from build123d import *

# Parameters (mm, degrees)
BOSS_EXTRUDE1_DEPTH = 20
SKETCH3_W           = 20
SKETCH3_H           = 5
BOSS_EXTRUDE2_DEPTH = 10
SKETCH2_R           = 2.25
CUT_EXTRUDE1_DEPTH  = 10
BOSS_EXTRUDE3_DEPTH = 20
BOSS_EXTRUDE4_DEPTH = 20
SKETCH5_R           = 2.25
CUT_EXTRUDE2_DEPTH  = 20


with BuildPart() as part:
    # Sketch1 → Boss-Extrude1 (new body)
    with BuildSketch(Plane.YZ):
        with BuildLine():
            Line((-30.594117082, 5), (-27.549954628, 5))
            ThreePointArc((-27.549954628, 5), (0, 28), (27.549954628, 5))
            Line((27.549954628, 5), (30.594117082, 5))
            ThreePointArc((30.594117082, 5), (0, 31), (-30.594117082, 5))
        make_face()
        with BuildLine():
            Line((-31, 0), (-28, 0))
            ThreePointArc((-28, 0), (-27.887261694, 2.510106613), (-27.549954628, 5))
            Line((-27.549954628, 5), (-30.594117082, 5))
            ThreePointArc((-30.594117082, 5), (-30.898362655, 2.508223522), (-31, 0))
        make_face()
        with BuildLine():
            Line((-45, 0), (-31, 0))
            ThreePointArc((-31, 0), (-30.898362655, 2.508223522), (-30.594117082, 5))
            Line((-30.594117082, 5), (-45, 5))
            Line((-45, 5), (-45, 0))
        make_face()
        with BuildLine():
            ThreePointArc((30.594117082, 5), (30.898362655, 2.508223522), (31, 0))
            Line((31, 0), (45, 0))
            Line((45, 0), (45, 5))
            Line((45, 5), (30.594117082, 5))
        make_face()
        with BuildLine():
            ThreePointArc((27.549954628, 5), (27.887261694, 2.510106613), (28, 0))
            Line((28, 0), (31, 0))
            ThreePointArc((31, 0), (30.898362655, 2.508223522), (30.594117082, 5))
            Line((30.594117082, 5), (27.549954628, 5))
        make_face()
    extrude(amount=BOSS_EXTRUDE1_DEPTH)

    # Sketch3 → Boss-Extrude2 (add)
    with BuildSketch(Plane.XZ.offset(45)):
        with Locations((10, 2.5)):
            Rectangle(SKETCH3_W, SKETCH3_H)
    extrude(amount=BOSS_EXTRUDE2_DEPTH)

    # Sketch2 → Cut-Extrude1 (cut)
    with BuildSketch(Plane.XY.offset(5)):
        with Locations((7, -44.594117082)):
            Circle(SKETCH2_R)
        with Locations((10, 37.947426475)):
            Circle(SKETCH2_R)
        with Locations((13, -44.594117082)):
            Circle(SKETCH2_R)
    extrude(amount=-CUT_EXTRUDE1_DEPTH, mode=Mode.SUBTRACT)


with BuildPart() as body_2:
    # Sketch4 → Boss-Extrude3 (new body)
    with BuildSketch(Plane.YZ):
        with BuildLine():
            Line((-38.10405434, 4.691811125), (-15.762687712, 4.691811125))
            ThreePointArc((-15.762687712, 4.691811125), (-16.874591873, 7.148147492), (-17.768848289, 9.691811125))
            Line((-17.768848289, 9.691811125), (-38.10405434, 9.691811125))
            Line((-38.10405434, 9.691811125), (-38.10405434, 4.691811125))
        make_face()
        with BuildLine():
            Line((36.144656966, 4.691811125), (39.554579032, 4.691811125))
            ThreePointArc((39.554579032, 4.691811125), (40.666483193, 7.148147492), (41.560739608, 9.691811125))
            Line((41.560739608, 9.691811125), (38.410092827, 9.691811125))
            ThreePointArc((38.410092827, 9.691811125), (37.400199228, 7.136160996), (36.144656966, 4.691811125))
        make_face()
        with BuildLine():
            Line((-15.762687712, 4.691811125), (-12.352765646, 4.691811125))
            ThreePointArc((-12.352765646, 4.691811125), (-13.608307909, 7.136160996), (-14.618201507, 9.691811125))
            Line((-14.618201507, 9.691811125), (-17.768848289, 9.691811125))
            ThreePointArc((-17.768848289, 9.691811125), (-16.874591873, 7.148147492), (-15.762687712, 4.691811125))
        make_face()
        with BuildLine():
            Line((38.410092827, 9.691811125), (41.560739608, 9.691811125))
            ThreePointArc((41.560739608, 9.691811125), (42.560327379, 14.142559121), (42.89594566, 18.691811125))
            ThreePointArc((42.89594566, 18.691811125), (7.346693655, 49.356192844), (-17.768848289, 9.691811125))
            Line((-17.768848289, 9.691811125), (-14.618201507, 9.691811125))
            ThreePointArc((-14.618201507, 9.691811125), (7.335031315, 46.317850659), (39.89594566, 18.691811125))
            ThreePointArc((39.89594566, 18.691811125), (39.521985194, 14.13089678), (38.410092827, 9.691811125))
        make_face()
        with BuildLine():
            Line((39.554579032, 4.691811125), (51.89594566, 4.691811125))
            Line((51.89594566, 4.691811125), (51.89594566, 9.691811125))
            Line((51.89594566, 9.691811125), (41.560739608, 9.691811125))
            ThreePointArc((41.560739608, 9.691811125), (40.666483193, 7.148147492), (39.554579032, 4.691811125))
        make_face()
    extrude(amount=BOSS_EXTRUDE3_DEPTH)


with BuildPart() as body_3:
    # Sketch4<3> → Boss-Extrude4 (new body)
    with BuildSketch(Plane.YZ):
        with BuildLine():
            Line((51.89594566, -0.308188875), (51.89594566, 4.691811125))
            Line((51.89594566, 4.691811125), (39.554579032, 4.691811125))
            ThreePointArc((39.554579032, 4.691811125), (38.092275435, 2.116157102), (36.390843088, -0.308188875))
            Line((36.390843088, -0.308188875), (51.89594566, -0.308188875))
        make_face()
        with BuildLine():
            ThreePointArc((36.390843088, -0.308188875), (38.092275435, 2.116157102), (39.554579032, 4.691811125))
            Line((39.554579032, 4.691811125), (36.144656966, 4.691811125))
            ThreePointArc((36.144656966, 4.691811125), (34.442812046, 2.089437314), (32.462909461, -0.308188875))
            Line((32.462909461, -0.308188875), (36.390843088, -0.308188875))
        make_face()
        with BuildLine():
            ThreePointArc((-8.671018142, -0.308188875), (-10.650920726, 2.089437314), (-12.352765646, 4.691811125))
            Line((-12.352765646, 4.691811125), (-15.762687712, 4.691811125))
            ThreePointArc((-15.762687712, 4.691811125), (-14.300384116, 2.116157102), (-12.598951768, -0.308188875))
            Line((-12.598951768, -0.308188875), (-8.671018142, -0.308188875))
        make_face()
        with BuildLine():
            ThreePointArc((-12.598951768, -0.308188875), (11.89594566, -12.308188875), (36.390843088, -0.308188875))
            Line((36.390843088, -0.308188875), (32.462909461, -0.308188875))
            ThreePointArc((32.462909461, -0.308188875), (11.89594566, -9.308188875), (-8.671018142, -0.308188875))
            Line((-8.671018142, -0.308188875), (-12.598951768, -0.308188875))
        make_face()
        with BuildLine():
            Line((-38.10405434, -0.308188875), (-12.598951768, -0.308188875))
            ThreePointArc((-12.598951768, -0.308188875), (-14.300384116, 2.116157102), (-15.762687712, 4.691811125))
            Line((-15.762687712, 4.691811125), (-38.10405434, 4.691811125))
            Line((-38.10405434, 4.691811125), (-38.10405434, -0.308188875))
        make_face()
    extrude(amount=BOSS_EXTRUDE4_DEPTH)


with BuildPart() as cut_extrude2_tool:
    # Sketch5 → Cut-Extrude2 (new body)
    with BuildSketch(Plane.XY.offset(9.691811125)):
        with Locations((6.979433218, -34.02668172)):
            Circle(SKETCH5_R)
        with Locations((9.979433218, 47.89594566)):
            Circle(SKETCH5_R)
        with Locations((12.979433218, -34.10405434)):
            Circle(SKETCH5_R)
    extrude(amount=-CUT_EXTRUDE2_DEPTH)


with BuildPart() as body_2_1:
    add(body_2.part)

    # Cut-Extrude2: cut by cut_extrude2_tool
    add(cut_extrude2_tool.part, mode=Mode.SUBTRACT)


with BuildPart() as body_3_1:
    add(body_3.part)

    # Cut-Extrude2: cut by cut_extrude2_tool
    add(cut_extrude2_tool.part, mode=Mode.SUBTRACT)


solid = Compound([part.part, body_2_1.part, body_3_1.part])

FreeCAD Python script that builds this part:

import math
import FreeCAD as App
import Part
import Sketcher

doc = App.newDocument("Part")
body = doc.addObject("PartDesign::Body", "Body")

sketch1 = doc.addObject("Sketcher::SketchObject", "Sketch")
body.addObject(sketch1)
sketch1.AttachmentSupport = (doc.YZ_Plane, [""])
sketch1.MapMode = "FlatFace"
sketch1.addGeometry([
    Part.ArcOfCircle(Part.Circle(App.Vector(0, 0, 0), App.Vector(0, 0, 1), 28), math.radians(10.286561), math.radians(169.713439)),
    Part.ArcOfCircle(Part.Circle(App.Vector(0, 0, 0), App.Vector(0, 0, 1), 28), math.radians(0), math.radians(10.286561)),
    Part.LineSegment(App.Vector(28, 0, 0), App.Vector(45, 0, 0)),
    Part.LineSegment(App.Vector(45, 0, 0), App.Vector(45, 5, 0)),
    Part.LineSegment(App.Vector(45, 5, 0), App.Vector(30.594117, 5, 0)),
    Part.ArcOfCircle(Part.Circle(App.Vector(0, 0, 0), App.Vector(0, 0, 1), 31), math.radians(9.281799), math.radians(170.718201)),
    Part.LineSegment(App.Vector(-30.594117, 5, 0), App.Vector(-45, 5, 0)),
    Part.LineSegment(App.Vector(-45, 5, 0), App.Vector(-45, 0, 0)),
    Part.LineSegment(App.Vector(-45, 0, 0), App.Vector(-28, 0, 0)),
    Part.ArcOfCircle(Part.Circle(App.Vector(0, 0, 0), App.Vector(0, 0, 1), 28), math.radians(169.713439), math.radians(180)),
], False)
sketch1.addConstraint([
    Sketcher.Constraint("Tangent", 0, 1, 1, 2),
    Sketcher.Constraint("Coincident", 1, 1, 2, 1),
    Sketcher.Constraint("Coincident", 2, 2, 3, 1),
    Sketcher.Constraint("Coincident", 3, 2, 4, 1),
    Sketcher.Constraint("Coincident", 4, 2, 5, 1),
    Sketcher.Constraint("Coincident", 5, 2, 6, 1),
    Sketcher.Constraint("Coincident", 6, 2, 7, 1),
    Sketcher.Constraint("Coincident", 7, 2, 8, 1),
    Sketcher.Constraint("Coincident", 8, 2, 9, 2),
    Sketcher.Constraint("Tangent", 9, 1, 0, 2),
    Sketcher.Constraint("Horizontal", 2),
    Sketcher.Constraint("Vertical", 3),
    Sketcher.Constraint("Horizontal", 4),
    Sketcher.Constraint("Horizontal", 6),
    Sketcher.Constraint("Vertical", 7),
    Sketcher.Constraint("Horizontal", 8),
    Sketcher.Constraint("Coincident", 0, 3, -1, 1),
    Sketcher.Constraint("Coincident", 5, 3, -1, 1),
    Sketcher.Constraint("Equal", 0, 1),
    Sketcher.Constraint("Equal", 1, 9),
    Sketcher.Constraint("Symmetric", 2, 2, 7, 2, -1, 1),
    Sketcher.Constraint("PointOnObject", 1, 1, -1),
    Sketcher.Constraint("Horizontal", 0, 1, 3, 2),
    Sketcher.Constraint("Horizontal", 4, 2, 5, 2),
    Sketcher.Constraint("Horizontal", 6, 2, 9, 1),
    Sketcher.Constraint("Radius", 0, 28.0),
    Sketcher.Constraint("Radius", 5, 31.0),
    Sketcher.Constraint("DistanceX", 2, 1, 2, 2, 17.0),
    Sketcher.Constraint("DistanceY", 3, 1, 3, 2, 5.0),
])
pad1 = doc.addObject("PartDesign::Pad", "Pad")
body.addObject(pad1)
pad1.Profile = sketch1
pad1.Length = 20

sketch2 = doc.addObject("Sketcher::SketchObject", "Sketch001")
body.addObject(sketch2)
sketch2.AttachmentSupport = (doc.XZ_Plane, [""])
sketch2.MapMode = "FlatFace"
sketch2.AttachmentOffset = App.Placement(App.Vector(0, 0, 45), App.Rotation())
sketch2.addGeometry([
    Part.LineSegment(App.Vector(0, 5, 0), App.Vector(0, 0, 0)),
    Part.LineSegment(App.Vector(0, 0, 0), App.Vector(20, 0, 0)),
    Part.LineSegment(App.Vector(20, 0, 0), App.Vector(20, 5, 0)),
    Part.LineSegment(App.Vector(20, 5, 0), App.Vector(0, 5, 0)),
], False)
sketch2.addConstraint([
    Sketcher.Constraint("Coincident", 0, 2, 1, 1),
    Sketcher.Constraint("Coincident", 1, 2, 2, 1),
    Sketcher.Constraint("Coincident", 2, 2, 3, 1),
    Sketcher.Constraint("Coincident", 3, 2, 0, 1),
    Sketcher.Constraint("Vertical", 0),
    Sketcher.Constraint("Horizontal", 1),
    Sketcher.Constraint("Vertical", 2),
    Sketcher.Constraint("Horizontal", 3),
    Sketcher.Constraint("Coincident", 0, 2, -1, 1),
    Sketcher.Constraint("DistanceX", 1, 1, 1, 2, 20.0),
    Sketcher.Constraint("DistanceY", 0, 2, 0, 1, 5.0),
])
pad2 = doc.addObject("PartDesign::Pad", "Pad001")
body.addObject(pad2)
pad2.Profile = sketch2
pad2.Length = 10

sketch3 = doc.addObject("Sketcher::SketchObject", "Sketch002")
body.addObject(sketch3)
sketch3.AttachmentSupport = (doc.XY_Plane, [""])
sketch3.MapMode = "FlatFace"
sketch3.AttachmentOffset = App.Placement(App.Vector(0, 0, 5), App.Rotation())
sketch3.addGeometry([
    Part.Circle(App.Vector(7, -44.594117, 0), App.Vector(0, 0, 1), 2.25),
    Part.Circle(App.Vector(10, 37.947426, 0), App.Vector(0, 0, 1), 2.25),
    Part.Circle(App.Vector(13, -44.594117, 0), App.Vector(0, 0, 1), 2.25),
], False)
sketch3.addConstraint([
    Sketcher.Constraint("Equal", 0, 1),
    Sketcher.Constraint("Equal", 1, 2),
    Sketcher.Constraint("Horizontal", 0, 3, 2, 3),
    Sketcher.Constraint("Diameter", 0, 4.5),
    Sketcher.Constraint("DistanceX", -1, 1, 0, 3, 7.0),
    Sketcher.Constraint("DistanceX", -1, 1, 1, 3, 10.0),
    Sketcher.Constraint("DistanceX", -1, 1, 2, 3, 13.0),
    Sketcher.Constraint("DistanceY", 0, 3, -1, 1, 44.594117),
    Sketcher.Constraint("DistanceY", -1, 1, 1, 3, 37.947426),
])
pocket1 = doc.addObject("PartDesign::Pocket", "Pocket")
body.addObject(pocket1)
pocket1.Profile = sketch3
pocket1.Length = 10
body2 = doc.addObject("PartDesign::Body", "Body001")

sketch4 = doc.addObject("Sketcher::SketchObject", "Sketch003")
body2.addObject(sketch4)
sketch4.AttachmentSupport = (doc.getObject("YZ_Plane001"), [""])
sketch4.MapMode = "FlatFace"
sketch4.addGeometry([
    Part.LineSegment(App.Vector(-17.768848, 9.691811, 0), App.Vector(-38.104054, 9.691811, 0)),
    Part.LineSegment(App.Vector(-38.104054, 9.691811, 0), App.Vector(-38.104054, 4.691811, 0)),
    Part.LineSegment(App.Vector(-38.104054, 4.691811, 0), App.Vector(-12.352766, 4.691811, 0)),
    Part.ArcOfCircle(Part.Circle(App.Vector(11.895946, 18.691811, 0), App.Vector(0, 0, 1), 28), math.radians(-161.250659), math.radians(-150)),
    Part.ArcOfCircle(Part.Circle(App.Vector(11.895946, 18.691811, 0), App.Vector(0, 0, 1), 28), math.radians(0), math.radians(198.749341)),
    Part.ArcOfCircle(Part.Circle(App.Vector(11.895946, 18.691811, 0), App.Vector(0, 0, 1), 28), math.radians(-18.749341), math.radians(0)),
    Part.ArcOfCircle(Part.Circle(App.Vector(11.895946, 18.691811, 0), App.Vector(0, 0, 1), 28), math.radians(-30), math.radians(-18.749341)),
    Part.LineSegment(App.Vector(36.144657, 4.691811, 0), App.Vector(51.895946, 4.691811, 0)),
    Part.LineSegment(App.Vector(51.895946, 4.691811, 0), App.Vector(51.895946, 9.691811, 0)),
    Part.LineSegment(App.Vector(51.895946, 9.691811, 0), App.Vector(41.56074, 9.691811, 0)),
    Part.ArcOfCircle(Part.Circle(App.Vector(11.895946, 18.691811, 0), App.Vector(0, 0, 1), 31), math.radians(-16.877269), math.radians(0)),
    Part.ArcOfCircle(Part.Circle(App.Vector(11.895946, 18.691811, 0), App.Vector(0, 0, 1), 31), math.radians(0), math.radians(196.877269)),
], False)
sketch4.addConstraint([
    Sketcher.Constraint("Coincident", 0, 2, 1, 1),
    Sketcher.Constraint("Coincident", 1, 2, 2, 1),
    Sketcher.Constraint("Coincident", 2, 2, 3, 2),
    Sketcher.Constraint("Tangent", 3, 1, 4, 2),
    Sketcher.Constraint("Tangent", 4, 1, 5, 2),
    Sketcher.Constraint("Tangent", 5, 1, 6, 2),
    Sketcher.Constraint("Coincident", 6, 1, 7, 1),
    Sketcher.Constraint("Coincident", 7, 2, 8, 1),
    Sketcher.Constraint("Coincident", 8, 2, 9, 1),
    Sketcher.Constraint("Coincident", 9, 2, 10, 1),
    Sketcher.Constraint("Tangent", 10, 2, 11, 1),
    Sketcher.Constraint("Coincident", 11, 2, 0, 1),
    Sketcher.Constraint("Horizontal", 0),
    Sketcher.Constraint("Vertical", 1),
    Sketcher.Constraint("Horizontal", 2),
    Sketcher.Constraint("Horizontal", 7),
    Sketcher.Constraint("Vertical", 8),
    Sketcher.Constraint("Horizontal", 9),
    Sketcher.Constraint("Coincident", 5, 3, 3, 3),
    Sketcher.Constraint("Coincident", 10, 3, 3, 3),
    Sketcher.Constraint("Equal", 5, 6),
    Sketcher.Constraint("Equal", 10, 11),
    Sketcher.Constraint("Horizontal", 0, 2, 3, 1),
    Sketcher.Constraint("Horizontal", 11, 3, 4, 1),
    Sketcher.Constraint("Horizontal", 3, 1, 5, 1),
    Sketcher.Constraint("Horizontal", 2, 2, 6, 1),
    Sketcher.Constraint("Horizontal", 5, 1, 8, 2),
    Sketcher.Constraint("Horizontal", 4, 1, 10, 2),
    Sketcher.Constraint("Radius", 3, 28.0),
    Sketcher.Constraint("Radius", 10, 31.0),
    Sketcher.Constraint("DistanceY", 1, 2, 1, 1, 5.0),
    Sketcher.Constraint("DistanceX", 0, 2, 6, 3, 50.0),
    Sketcher.Constraint("DistanceY", 0, 2, 6, 3, 9.0),
    Sketcher.Constraint("DistanceX", 4, 1, 7, 2, 12.0),
    Sketcher.Constraint("DistanceX", 3, 1, -1, 1, 14.618202),
    Sketcher.Constraint("DistanceY", -1, 1, 3, 3, 18.691811),
])
pad3 = doc.addObject("PartDesign::Pad", "Pad002")
body2.addObject(pad3)
pad3.Profile = sketch4
pad3.Length = 20
body3 = doc.addObject("PartDesign::Body", "Body002")

sketch5 = doc.addObject("Sketcher::SketchObject", "Sketch004")
body3.addObject(sketch5)
sketch5.AttachmentSupport = (doc.getObject("YZ_Plane002"), [""])
sketch5.MapMode = "FlatFace"
sketch5.addGeometry([
    Part.ArcOfCircle(Part.Circle(App.Vector(11.895946, 18.691811, 0), App.Vector(0, 0, 1), 31), math.radians(-142.200278), math.radians(-37.799722)),
    Part.LineSegment(App.Vector(36.390843, -0.308189, 0), App.Vector(51.895946, -0.308189, 0)),
    Part.LineSegment(App.Vector(51.895946, -0.308189, 0), App.Vector(51.895946, 4.691811, 0)),
    Part.LineSegment(App.Vector(51.895946, 4.691811, 0), App.Vector(36.144657, 4.691811, 0)),
    Part.ArcOfCircle(Part.Circle(App.Vector(11.895946, 18.691811, 0), App.Vector(0, 0, 1), 28), math.radians(-42.73211), math.radians(-30)),
    Part.ArcOfCircle(Part.Circle(App.Vector(11.895946, 18.691811, 0), App.Vector(0, 0, 1), 28), math.radians(-137.26789), math.radians(-42.73211)),
    Part.ArcOfCircle(Part.Circle(App.Vector(11.895946, 18.691811, 0), App.Vector(0, 0, 1), 28), math.radians(-150), math.radians(-137.26789)),
    Part.LineSegment(App.Vector(-12.352766, 4.691811, 0), App.Vector(-38.104054, 4.691811, 0)),
    Part.LineSegment(App.Vector(-38.104054, 4.691811, 0), App.Vector(-38.104054, -0.308189, 0)),
    Part.LineSegment(App.Vector(-38.104054, -0.308189, 0), App.Vector(-12.598952, -0.308189, 0)),
], False)
sketch5.addConstraint([
    Sketcher.Constraint("Coincident", 0, 2, 1, 1),
    Sketcher.Constraint("Coincident", 1, 2, 2, 1),
    Sketcher.Constraint("Coincident", 2, 2, 3, 1),
    Sketcher.Constraint("Coincident", 3, 2, 4, 2),
    Sketcher.Constraint("Tangent", 4, 1, 5, 2),
    Sketcher.Constraint("Tangent", 5, 1, 6, 2),
    Sketcher.Constraint("Coincident", 6, 1, 7, 1),
    Sketcher.Constraint("Coincident", 7, 2, 8, 1),
    Sketcher.Constraint("Coincident", 8, 2, 9, 1),
    Sketcher.Constraint("Coincident", 9, 2, 0, 1),
    Sketcher.Constraint("Horizontal", 1),
    Sketcher.Constraint("Vertical", 2),
    Sketcher.Constraint("Horizontal", 3),
    Sketcher.Constraint("Horizontal", 7),
    Sketcher.Constraint("Vertical", 8),
    Sketcher.Constraint("Horizontal", 9),
    Sketcher.Constraint("Coincident", 4, 3, 0, 3),
    Sketcher.Constraint("Coincident", 6, 3, 0, 3),
    Sketcher.Constraint("Horizontal", 1, 2, 4, 1),
    Sketcher.Constraint("Horizontal", 4, 1, 5, 1),
    Sketcher.Constraint("Horizontal", 3, 2, 6, 1),
    Sketcher.Constraint("Horizontal", 5, 1, 8, 2),
    Sketcher.Constraint("Radius", 0, 31.0),
    Sketcher.Constraint("Radius", 4, 28.0),
    Sketcher.Constraint("DistanceY", 2, 1, 2, 2, 5.0),
    Sketcher.Constraint("DistanceY", 0, 2, 6, 3, 19.0),
    Sketcher.Constraint("DistanceX", 6, 3, 1, 2, 40.0),
    Sketcher.Constraint("DistanceX", 7, 2, 4, 3, 50.0),
    Sketcher.Constraint("DistanceY", -1, 1, 0, 3, 18.691811),
    Sketcher.Constraint("DistanceX", -1, 1, 4, 1, 32.462909),
])
pad4 = doc.addObject("PartDesign::Pad", "Pad003")
body3.addObject(pad4)
pad4.Profile = sketch5
pad4.Length = 20
body4 = doc.addObject("PartDesign::Body", "Body003")
body4.AllowCompound = True

sketch6 = doc.addObject("Sketcher::SketchObject", "Sketch005")
body4.addObject(sketch6)
sketch6.AttachmentSupport = (doc.getObject("XY_Plane003"), [""])
sketch6.MapMode = "FlatFace"
sketch6.AttachmentOffset = App.Placement(App.Vector(0, 0, 9.691811), App.Rotation())
sketch6.addGeometry([
    Part.Circle(App.Vector(6.979433, -34.026682, 0), App.Vector(0, 0, 1), 2.25),
    Part.Circle(App.Vector(9.979433, 47.895946, 0), App.Vector(0, 0, 1), 2.25),
    Part.Circle(App.Vector(12.979433, -34.104054, 0), App.Vector(0, 0, 1), 2.25),
], False)
sketch6.addConstraint([
    Sketcher.Constraint("Equal", 0, 1),
    Sketcher.Constraint("Equal", 1, 2),
    Sketcher.Constraint("Diameter", 0, 4.5),
    Sketcher.Constraint("DistanceX", 0, 3, 1, 3, 3.0),
    Sketcher.Constraint("DistanceX", 0, 3, 2, 3, 6.0),
    Sketcher.Constraint("DistanceY", 2, 3, 1, 3, 82.0),
    Sketcher.Constraint("DistanceY", 0, 3, -1, 1, 34.026682),
    Sketcher.Constraint("DistanceX", -1, 1, 0, 3, 6.979433),
    Sketcher.Constraint("DistanceY", -1, 1, 1, 3, 47.895946),
])
pad5 = doc.addObject("PartDesign::Pad", "Pad004")
body4.addObject(pad5)
pad5.Profile = sketch6
pad5.Length = 20
pad5.Reversed = True
doc.recompute()

body5 = doc.addObject("PartDesign::Body", "Body004")
body5.BaseFeature = body4
boolean = doc.addObject("PartDesign::Boolean", "Boolean")
body2.addObject(boolean)
boolean.Type = "Cut"
boolean.addObjects([body5])
doc.recompute()

boolean2 = doc.addObject("PartDesign::Boolean", "Boolean001")
body3.addObject(boolean2)
boolean2.Type = "Cut"
boolean2.addObjects([body4])

doc.recompute()
